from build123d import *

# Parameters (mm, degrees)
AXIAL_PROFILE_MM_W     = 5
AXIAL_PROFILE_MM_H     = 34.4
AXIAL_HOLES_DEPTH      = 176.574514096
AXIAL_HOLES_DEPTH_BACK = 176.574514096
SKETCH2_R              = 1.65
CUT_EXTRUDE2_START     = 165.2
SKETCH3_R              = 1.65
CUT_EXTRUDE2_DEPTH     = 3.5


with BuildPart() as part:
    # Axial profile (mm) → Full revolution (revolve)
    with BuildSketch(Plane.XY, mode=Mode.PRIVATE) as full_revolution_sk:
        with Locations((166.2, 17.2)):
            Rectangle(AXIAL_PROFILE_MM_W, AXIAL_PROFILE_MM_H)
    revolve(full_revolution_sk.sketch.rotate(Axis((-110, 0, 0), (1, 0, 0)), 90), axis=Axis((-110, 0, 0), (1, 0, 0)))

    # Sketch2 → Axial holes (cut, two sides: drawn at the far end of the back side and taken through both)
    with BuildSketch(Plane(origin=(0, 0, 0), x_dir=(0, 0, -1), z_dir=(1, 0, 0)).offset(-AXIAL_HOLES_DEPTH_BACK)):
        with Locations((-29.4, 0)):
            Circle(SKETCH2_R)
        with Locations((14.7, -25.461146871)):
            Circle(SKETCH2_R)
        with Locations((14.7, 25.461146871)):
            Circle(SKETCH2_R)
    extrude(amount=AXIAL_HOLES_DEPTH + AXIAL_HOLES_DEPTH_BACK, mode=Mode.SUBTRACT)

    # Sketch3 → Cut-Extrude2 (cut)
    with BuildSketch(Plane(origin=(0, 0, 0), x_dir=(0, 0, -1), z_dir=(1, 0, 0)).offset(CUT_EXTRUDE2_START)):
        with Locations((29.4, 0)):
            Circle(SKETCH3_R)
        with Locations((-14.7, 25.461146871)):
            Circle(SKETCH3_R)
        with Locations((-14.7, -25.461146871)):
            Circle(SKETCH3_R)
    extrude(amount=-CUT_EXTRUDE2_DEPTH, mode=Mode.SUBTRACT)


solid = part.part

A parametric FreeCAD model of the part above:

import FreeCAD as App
import Part
import Sketcher
from FreeCAD import Vector

doc = App.newDocument("Part")
body = doc.addObject("PartDesign::Body", "Body")

sketch1 = body.newObject("Sketcher::SketchObject", "Sketch")
sketch1.AttachmentSupport = (doc.getObject("XY_Plane"), [""])
sketch1.MapMode = "FlatFace"
sketch1.addGeometry([
    Part.LineSegment(Vector(164, 34, 0), Vector(164, 0, 0)),
    Part.LineSegment(Vector(164, 0, 0), Vector(169, 0, 0)),
    Part.LineSegment(Vector(169, 0, 0), Vector(169, 34, 0)),
    Part.LineSegment(Vector(169, 34, 0), Vector(164, 34, 0)),
], False)
sketch1.addConstraint([
    Sketcher.Constraint("Coincident", 0, 2, 1, 1),
    Sketcher.Constraint("Coincident", 1, 2, 2, 1),
    Sketcher.Constraint("Coincident", 2, 2, 3, 1),
    Sketcher.Constraint("Coincident", 3, 2, 0, 1),
    Sketcher.Constraint("Vertical", 0),
    Sketcher.Constraint("Horizontal", 1),
    Sketcher.Constraint("Vertical", 2),
    Sketcher.Constraint("Horizontal", 3),
    Sketcher.Constraint("PointOnObject", 0, 2, -1),
    Sketcher.Constraint("DistanceX", 1, 1, 1, 2, 5.0),
    Sketcher.Constraint("DistanceY", 0, 2, 0, 1, 34.4),
    Sketcher.Constraint("DistanceX", -1, 1, 0, 2, 163.7),
])
revolution = body.newObject("PartDesign::Revolution", "Revolution")
revolution.Profile = sketch1
revolution.ReferenceAxis = (sketch1, ["H_Axis"])
revolution.Angle = 360

sketch2 = body.newObject("Sketcher::SketchObject", "Sketch001")
sketch2.AttachmentSupport = (doc.getObject("YZ_Plane"), [""])
sketch2.MapMode = "FlatFace"
sketch2.addGeometry([
    Part.Circle(Vector(0, 29.4, 0), Vector(0, 0, 1), 1.6),
    Part.Circle(Vector(-25.5, -14.7, 0), Vector(0, 0, 1), 1.6),
    Part.Circle(Vector(25.5, -14.7, 0), Vector(0, 0, 1), 1.6),
], False)
sketch2.addConstraint([
    Sketcher.Constraint("Equal", 0, 1),
    Sketcher.Constraint("Equal", 1, 2),
    Sketcher.Constraint("Symmetric", 1, 3, 2, 3, -2),
    Sketcher.Constraint("PointOnObject", 0, 3, -2),
    Sketcher.Constraint("Diameter", 0, 3.3),
    Sketcher.Constraint("DistanceY", -1, 1, 0, 3, 29.4),
    Sketcher.Constraint("DistanceY", 1, 3, -1, 1, 14.7),
    Sketcher.Constraint("DistanceX", 1, 3, -1, 1, 25.461147),
])
pocket1 = body.newObject("PartDesign::Pocket", "Pocket")
pocket1.Profile = sketch2
pocket1.Type = "ThroughAll"
pocket1.Midplane = True

sketch3 = body.newObject("Sketcher::SketchObject", "Sketch002")
sketch3.AttachmentSupport = (doc.getObject("YZ_Plane"), [""])
sketch3.MapMode = "FlatFace"
sketch3.AttachmentOffset = App.Placement(Vector(0, 0, 165.2), App.Rotation())
sketch3.addGeometry([
    Part.Circle(Vector(0, -29.4, 0), Vector(0, 0, 1), 1.6),
    Part.Circle(Vector(25.5, 14.7, 0), Vector(0, 0, 1), 1.6),
    Part.Circle(Vector(-25.5, 14.7, 0), Vector(0, 0, 1), 1.6),
], False)
sketch3.addConstraint([
    Sketcher.Constraint("Equal", 0, 1),
    Sketcher.Constraint("Equal", 1, 2),
    Sketcher.Constraint("Symmetric", 1, 3, 2, 3, -2),
    Sketcher.Constraint("PointOnObject", 0, 3, -2),
    Sketcher.Constraint("Diameter", 0, 3.3),
    Sketcher.Constraint("DistanceY", 0, 3, -1, 1, 29.4),
    Sketcher.Constraint("DistanceY", -1, 1, 1, 3, 14.7),
    Sketcher.Constraint("DistanceX", -1, 1, 1, 3, 25.461147),
])
pocket2 = body.newObject("PartDesign::Pocket", "Pocket001")
pocket2.Profile = sketch3
pocket2.Length = 3.5

doc.recompute()
